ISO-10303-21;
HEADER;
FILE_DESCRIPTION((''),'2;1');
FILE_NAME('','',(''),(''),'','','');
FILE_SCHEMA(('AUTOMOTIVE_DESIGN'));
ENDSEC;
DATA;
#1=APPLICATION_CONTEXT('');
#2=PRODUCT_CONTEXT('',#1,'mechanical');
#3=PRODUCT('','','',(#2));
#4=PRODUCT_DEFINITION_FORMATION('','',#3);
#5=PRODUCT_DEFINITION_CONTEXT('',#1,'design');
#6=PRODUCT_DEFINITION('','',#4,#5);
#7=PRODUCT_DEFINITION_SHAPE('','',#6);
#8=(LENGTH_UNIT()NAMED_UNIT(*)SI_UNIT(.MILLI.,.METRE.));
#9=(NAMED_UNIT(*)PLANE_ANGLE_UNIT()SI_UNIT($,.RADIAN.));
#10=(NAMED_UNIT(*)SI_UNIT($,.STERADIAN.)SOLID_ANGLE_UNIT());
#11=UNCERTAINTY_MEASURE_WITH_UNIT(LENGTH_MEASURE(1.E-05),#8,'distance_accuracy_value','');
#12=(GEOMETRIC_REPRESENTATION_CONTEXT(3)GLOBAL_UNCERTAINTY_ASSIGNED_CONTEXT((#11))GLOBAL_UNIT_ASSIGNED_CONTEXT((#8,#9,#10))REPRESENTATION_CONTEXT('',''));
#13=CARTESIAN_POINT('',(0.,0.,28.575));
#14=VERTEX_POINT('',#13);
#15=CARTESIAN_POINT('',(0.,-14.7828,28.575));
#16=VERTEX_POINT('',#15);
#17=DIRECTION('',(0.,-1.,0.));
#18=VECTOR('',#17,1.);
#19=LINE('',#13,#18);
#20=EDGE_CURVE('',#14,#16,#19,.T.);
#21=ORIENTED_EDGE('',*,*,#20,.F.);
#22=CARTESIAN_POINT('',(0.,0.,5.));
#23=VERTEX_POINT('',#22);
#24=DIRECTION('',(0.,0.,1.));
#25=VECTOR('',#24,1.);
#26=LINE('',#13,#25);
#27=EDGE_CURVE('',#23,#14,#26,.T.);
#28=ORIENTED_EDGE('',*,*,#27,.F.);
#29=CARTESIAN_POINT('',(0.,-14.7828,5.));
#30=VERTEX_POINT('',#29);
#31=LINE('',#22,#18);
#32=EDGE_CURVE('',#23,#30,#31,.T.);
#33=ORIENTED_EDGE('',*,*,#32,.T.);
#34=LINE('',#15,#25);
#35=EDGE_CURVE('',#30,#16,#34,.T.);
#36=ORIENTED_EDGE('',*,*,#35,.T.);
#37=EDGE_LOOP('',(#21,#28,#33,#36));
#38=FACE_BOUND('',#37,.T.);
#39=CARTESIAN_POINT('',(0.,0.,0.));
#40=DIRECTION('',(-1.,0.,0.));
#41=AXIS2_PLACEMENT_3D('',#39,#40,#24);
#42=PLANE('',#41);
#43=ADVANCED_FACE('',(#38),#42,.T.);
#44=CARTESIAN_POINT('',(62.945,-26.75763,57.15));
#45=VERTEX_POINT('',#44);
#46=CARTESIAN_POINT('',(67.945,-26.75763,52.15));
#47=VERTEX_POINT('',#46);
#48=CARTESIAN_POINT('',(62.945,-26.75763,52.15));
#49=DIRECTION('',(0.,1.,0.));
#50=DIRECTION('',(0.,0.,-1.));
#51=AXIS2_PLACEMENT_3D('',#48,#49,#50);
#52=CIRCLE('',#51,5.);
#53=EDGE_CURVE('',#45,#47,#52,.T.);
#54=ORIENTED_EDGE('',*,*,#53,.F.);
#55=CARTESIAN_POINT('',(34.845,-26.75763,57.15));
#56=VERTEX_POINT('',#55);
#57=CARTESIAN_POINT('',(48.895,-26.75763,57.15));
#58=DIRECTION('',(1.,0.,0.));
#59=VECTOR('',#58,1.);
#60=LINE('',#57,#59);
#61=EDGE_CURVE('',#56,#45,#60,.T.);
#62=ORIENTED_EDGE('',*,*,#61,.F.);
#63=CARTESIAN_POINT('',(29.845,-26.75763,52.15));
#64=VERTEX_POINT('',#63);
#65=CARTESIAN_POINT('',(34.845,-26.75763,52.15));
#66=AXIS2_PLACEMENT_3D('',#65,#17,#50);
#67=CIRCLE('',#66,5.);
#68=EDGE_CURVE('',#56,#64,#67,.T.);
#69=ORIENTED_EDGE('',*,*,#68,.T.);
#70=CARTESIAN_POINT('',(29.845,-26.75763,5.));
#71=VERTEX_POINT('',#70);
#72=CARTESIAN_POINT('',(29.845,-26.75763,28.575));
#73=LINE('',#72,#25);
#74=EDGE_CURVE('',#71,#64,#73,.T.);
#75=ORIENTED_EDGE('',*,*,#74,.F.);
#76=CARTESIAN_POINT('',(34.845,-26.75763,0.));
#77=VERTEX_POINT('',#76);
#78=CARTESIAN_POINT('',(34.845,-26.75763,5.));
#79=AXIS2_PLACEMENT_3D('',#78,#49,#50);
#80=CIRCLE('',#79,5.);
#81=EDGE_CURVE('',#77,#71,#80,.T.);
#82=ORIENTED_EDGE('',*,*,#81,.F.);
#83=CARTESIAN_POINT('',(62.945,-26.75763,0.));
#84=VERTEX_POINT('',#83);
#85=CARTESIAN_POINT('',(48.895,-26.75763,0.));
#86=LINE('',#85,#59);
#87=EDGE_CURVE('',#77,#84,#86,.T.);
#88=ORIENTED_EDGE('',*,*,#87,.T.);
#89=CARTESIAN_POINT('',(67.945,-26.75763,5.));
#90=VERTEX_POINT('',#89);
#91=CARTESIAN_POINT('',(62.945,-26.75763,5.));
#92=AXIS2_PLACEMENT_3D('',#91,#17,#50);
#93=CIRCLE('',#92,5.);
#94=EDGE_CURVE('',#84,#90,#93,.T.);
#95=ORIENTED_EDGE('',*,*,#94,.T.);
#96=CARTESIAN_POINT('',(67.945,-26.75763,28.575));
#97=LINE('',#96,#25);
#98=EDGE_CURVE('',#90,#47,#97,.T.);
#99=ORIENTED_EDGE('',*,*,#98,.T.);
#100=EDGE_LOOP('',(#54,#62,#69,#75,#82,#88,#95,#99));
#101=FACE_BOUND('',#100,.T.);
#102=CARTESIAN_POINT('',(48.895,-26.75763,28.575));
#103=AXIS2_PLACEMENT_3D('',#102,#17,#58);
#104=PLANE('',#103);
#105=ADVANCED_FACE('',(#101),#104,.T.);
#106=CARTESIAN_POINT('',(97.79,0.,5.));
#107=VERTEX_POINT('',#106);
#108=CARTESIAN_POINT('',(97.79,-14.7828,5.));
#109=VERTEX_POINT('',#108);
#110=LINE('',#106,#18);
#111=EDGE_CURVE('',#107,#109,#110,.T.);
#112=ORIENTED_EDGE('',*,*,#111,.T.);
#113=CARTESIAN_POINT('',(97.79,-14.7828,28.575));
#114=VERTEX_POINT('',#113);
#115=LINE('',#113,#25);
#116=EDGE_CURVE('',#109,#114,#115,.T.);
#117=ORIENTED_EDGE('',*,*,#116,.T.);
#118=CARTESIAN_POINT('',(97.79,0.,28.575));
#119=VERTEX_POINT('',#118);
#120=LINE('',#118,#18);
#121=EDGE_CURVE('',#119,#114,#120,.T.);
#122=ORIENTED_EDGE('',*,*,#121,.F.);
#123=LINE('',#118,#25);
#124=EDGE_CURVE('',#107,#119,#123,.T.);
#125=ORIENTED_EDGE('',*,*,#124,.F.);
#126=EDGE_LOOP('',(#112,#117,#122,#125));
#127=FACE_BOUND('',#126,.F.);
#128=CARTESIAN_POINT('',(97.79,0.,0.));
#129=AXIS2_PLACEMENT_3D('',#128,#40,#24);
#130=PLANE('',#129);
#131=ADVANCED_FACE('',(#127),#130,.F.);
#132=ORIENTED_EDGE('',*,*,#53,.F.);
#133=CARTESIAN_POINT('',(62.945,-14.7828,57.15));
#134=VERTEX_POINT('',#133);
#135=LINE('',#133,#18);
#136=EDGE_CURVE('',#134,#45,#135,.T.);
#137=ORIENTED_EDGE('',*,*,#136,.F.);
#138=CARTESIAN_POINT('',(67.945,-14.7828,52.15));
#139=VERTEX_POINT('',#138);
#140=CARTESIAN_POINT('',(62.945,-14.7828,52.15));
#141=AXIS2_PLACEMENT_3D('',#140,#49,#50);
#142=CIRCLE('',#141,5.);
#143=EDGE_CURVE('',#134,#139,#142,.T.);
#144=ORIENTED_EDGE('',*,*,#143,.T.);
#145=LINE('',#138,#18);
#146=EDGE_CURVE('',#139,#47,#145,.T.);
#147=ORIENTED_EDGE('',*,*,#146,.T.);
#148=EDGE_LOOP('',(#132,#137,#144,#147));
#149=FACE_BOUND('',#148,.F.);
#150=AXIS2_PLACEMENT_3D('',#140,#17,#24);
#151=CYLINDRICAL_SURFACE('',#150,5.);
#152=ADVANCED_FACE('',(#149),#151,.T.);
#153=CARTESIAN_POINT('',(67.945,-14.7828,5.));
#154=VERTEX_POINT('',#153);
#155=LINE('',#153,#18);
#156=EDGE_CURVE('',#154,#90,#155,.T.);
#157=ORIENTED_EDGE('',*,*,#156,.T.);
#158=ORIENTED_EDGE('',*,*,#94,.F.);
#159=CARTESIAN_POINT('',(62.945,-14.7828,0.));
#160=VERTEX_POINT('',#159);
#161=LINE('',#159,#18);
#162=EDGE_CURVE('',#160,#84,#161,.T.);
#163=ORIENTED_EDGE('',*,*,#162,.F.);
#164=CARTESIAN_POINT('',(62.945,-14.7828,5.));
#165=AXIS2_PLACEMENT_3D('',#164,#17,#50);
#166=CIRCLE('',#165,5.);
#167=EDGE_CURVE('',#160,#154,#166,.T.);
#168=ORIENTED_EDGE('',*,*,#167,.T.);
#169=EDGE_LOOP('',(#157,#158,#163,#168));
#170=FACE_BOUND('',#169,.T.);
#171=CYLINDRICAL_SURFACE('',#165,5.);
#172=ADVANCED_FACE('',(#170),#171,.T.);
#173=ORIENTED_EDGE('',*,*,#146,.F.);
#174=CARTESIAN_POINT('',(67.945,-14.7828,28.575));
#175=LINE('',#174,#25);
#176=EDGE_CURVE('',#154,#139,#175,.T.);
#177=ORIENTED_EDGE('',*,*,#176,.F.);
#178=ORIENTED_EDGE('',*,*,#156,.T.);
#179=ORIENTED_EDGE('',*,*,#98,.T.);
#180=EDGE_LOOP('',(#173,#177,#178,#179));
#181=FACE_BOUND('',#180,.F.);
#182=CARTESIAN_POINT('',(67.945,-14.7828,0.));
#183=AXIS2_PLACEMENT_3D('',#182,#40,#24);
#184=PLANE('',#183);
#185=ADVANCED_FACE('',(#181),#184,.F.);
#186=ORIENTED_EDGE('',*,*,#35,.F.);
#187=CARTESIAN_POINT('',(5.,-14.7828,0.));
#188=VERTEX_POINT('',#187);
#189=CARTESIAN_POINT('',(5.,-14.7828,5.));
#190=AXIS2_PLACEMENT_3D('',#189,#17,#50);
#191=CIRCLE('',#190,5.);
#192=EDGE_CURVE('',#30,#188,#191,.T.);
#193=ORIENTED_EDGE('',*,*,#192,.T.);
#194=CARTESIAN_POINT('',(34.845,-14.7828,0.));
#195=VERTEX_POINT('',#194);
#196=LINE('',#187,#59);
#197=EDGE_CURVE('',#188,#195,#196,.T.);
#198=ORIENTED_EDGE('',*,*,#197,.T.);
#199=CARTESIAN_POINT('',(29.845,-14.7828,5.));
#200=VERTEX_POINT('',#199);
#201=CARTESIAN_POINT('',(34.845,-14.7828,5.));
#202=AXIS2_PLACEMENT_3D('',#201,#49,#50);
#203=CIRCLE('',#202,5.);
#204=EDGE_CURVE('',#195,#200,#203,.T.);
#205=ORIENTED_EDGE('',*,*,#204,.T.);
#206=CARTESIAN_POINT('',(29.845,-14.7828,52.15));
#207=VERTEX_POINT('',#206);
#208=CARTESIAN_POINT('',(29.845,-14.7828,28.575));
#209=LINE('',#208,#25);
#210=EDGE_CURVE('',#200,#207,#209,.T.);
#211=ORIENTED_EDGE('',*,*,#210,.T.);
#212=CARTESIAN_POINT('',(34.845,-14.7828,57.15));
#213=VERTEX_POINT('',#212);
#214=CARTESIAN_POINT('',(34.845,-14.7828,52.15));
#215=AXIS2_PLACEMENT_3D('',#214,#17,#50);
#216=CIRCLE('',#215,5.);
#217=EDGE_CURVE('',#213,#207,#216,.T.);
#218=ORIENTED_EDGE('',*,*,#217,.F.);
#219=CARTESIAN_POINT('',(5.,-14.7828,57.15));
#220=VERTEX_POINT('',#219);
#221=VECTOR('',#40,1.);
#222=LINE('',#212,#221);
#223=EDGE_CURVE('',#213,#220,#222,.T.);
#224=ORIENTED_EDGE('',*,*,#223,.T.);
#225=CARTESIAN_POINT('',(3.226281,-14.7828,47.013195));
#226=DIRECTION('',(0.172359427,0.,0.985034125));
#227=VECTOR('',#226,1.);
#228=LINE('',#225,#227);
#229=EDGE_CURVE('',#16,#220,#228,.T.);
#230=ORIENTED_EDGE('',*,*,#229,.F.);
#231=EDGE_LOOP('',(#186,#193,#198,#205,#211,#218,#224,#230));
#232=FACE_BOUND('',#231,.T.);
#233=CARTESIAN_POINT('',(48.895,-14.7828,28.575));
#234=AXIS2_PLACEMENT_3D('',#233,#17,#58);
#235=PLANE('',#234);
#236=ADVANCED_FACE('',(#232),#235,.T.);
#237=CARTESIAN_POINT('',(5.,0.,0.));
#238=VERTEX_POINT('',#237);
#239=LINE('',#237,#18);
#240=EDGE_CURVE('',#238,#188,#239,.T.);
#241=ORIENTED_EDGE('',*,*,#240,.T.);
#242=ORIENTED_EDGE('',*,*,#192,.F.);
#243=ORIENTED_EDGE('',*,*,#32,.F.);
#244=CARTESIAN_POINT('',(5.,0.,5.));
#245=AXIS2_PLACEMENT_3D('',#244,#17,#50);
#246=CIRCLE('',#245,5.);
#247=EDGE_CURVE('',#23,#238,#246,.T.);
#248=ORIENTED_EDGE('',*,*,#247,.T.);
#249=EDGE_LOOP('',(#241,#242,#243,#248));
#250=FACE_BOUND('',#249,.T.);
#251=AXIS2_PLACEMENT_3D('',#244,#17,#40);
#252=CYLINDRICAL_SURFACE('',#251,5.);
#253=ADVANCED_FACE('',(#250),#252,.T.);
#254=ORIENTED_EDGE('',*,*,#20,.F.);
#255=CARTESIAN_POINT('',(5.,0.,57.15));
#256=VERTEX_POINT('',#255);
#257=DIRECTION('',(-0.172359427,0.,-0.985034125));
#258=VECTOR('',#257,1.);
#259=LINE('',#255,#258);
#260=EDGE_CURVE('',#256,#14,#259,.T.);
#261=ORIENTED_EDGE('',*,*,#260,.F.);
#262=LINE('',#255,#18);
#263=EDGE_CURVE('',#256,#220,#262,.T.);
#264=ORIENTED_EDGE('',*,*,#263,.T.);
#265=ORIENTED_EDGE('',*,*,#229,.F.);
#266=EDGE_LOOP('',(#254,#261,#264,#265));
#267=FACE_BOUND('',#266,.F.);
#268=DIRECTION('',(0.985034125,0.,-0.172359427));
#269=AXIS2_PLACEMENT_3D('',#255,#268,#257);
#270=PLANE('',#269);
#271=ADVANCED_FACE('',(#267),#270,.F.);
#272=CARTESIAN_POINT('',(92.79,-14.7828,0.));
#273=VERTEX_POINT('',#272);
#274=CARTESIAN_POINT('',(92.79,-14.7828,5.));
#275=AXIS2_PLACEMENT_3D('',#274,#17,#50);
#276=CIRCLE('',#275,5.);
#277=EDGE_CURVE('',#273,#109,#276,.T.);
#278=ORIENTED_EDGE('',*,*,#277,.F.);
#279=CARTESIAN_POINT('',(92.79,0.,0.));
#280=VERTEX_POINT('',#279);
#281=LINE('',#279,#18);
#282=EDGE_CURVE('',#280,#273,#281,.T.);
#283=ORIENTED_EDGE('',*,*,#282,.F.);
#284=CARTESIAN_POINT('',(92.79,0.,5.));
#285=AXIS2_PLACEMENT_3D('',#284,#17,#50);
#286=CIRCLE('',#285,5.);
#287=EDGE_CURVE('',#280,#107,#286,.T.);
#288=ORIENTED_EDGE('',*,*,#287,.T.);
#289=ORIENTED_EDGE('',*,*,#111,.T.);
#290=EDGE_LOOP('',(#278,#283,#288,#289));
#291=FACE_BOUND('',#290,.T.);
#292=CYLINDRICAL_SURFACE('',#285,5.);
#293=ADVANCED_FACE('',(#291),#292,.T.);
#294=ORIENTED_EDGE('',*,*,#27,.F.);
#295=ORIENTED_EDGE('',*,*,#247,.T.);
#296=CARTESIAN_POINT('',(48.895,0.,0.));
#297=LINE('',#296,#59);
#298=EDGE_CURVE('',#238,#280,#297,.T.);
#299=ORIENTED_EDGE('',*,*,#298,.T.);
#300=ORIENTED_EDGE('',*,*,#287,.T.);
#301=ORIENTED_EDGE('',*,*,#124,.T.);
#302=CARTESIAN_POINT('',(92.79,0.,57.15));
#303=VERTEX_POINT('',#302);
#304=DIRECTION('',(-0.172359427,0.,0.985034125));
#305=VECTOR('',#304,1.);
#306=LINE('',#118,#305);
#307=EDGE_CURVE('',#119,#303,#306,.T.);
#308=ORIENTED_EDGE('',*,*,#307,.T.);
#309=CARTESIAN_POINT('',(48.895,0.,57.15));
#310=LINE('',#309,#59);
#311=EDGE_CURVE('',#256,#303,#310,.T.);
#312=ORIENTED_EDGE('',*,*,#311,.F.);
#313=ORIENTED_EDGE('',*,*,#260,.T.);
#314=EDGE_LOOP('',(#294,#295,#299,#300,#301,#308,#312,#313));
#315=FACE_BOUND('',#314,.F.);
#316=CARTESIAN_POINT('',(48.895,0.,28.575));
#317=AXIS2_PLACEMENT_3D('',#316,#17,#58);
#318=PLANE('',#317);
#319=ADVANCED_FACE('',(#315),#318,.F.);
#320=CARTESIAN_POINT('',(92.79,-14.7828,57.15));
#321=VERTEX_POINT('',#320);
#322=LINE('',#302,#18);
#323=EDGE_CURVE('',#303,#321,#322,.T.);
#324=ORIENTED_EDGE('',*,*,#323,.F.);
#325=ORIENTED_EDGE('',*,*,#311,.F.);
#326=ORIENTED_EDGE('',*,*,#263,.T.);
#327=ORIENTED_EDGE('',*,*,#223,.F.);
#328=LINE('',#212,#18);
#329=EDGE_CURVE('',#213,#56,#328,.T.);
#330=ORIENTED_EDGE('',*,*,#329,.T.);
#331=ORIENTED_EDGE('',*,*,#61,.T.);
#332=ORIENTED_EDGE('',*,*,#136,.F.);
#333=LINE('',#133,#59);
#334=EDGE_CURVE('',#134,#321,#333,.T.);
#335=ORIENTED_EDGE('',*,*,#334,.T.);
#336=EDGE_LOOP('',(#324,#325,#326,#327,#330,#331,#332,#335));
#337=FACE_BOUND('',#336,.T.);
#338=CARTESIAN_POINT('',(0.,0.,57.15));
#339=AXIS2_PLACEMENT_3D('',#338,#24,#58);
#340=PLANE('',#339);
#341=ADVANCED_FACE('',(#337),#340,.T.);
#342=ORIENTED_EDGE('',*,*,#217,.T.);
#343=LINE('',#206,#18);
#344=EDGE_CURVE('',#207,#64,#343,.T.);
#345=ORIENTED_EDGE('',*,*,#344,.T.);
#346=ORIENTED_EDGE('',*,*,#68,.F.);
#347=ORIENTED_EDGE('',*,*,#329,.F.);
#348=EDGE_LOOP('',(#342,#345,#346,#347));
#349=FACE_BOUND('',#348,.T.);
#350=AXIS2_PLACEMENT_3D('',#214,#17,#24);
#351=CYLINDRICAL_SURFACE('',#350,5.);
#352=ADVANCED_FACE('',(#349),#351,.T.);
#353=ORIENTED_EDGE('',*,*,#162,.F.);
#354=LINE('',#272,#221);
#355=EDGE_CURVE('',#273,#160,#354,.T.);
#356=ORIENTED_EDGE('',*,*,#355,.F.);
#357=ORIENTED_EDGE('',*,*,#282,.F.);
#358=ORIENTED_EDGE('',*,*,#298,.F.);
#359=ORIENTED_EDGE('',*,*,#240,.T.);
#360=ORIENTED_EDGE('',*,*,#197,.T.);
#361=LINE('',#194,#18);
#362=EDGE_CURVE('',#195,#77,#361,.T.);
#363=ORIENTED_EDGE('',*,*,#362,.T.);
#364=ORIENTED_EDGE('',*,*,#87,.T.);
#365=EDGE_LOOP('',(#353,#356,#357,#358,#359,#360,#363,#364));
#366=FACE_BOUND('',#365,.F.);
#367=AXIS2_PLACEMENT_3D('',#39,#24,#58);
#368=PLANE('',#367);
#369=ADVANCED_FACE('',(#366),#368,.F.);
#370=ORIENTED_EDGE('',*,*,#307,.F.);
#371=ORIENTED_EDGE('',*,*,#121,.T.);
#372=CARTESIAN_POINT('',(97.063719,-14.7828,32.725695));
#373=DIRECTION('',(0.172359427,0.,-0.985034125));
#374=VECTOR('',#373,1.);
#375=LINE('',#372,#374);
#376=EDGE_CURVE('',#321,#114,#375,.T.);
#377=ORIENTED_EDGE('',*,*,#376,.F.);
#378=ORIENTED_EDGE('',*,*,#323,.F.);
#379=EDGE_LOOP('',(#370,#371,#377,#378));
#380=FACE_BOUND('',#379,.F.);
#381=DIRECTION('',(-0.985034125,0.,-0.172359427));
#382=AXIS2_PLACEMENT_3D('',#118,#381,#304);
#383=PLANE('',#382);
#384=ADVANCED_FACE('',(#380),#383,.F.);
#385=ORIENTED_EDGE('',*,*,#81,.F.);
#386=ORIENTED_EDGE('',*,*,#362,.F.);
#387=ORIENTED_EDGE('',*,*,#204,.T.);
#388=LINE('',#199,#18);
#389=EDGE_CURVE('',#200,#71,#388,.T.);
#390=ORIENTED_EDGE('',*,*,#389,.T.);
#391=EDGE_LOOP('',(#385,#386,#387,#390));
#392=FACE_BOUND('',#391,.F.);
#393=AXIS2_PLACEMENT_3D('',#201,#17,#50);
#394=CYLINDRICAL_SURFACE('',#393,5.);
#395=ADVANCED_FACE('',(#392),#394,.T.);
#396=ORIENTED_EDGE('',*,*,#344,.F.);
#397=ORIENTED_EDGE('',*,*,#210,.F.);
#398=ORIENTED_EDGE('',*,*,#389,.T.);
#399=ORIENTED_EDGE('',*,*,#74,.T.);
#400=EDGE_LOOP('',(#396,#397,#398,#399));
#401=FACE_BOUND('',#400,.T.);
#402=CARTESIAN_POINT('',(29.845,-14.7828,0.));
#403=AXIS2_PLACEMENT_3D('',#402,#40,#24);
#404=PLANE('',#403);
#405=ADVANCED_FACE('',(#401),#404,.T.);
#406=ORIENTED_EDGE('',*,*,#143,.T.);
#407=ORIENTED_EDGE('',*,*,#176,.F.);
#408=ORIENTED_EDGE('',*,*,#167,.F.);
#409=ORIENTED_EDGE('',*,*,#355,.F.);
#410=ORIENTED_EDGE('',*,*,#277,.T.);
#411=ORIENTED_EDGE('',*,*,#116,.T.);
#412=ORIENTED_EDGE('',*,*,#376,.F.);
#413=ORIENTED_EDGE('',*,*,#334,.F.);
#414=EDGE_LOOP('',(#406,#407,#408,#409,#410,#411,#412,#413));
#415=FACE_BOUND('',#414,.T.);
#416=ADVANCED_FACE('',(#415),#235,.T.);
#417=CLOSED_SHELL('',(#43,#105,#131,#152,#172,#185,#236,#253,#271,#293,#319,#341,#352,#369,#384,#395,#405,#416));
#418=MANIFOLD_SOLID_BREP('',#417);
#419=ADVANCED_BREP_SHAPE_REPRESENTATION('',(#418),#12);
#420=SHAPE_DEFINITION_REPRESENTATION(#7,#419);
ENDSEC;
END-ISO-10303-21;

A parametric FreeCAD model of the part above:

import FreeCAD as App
import Part
import Sketcher

V = App.Vector
Q = App.Units.Quantity


def edges_at(feature, points):
    """Names of the edges that pass closest to the given points."""
    edges = feature.Shape.Edges
    near = lambda p: min(range(len(edges)), key=lambda i: edges[i].distToShape(Part.Vertex(*p))[0])
    return sorted({f"Edge{near(p) + 1}" for p in points})


def add_polygon(sketch, points):
    """Adds a closed chain of lines whose ends are joined by coincident constraints."""
    first, n = sketch.GeometryCount, len(points)
    for a, b in zip(points, points[1:] + points[:1]):
        sketch.addGeometry(Part.LineSegment(App.Vector(*a, 0), App.Vector(*b, 0)), False)
    for i in range(n):
        sketch.addConstraint(Sketcher.Constraint("Coincident", first + i, 2, first + (i + 1) % n, 1))

doc = App.newDocument("Part")
body = doc.addObject("PartDesign::Body", "Body")

# Sketch on XZ plane
sketch1 = body.newObject("Sketcher::SketchObject", "Sketch")
sketch1.AttachmentSupport = (doc.getObject("XZ_Plane"), [""])
sketch1.MapMode = "FlatFace"
add_polygon(sketch1, [(0, 57.15), (0, 0), (97.79, 0), (97.79, 57.15)])  # lines 0-3
sketch1.addConstraint(Sketcher.Constraint("Vertical", 0))
sketch1.addConstraint(Sketcher.Constraint("Horizontal", 1))
sketch1.addConstraint(Sketcher.Constraint("Vertical", 2))
sketch1.addConstraint(Sketcher.Constraint("Horizontal", 3))
sketch1.addConstraint(Sketcher.Constraint("Coincident", 0, 2, -1, 1))
sketch1.addConstraint(Sketcher.Constraint("DistanceX", 1, 1, 1, 2, Q("3.85 in")))
sketch1.addConstraint(Sketcher.Constraint("DistanceY", 0, 2, 0, 1, Q("2.25 in")))
pad1 = body.newObject("PartDesign::Pad", "Pad")
pad1.Profile = sketch1
pad1.Length = Q("0.582 in")

# Sketch on XZ plane
sketch2 = body.newObject("Sketcher::SketchObject", "Sketch001")
sketch2.AttachmentSupport = (doc.getObject("XZ_Plane"), [""])
sketch2.MapMode = "FlatFace"
sketch2.AttachmentOffset = App.Placement(V(0, 0, 0.582 * 25.4), App.Rotation())
add_polygon(sketch2, [(29.845, 57.15), (29.845, 0), (67.945, 0), (67.945, 57.15)])  # lines 0-3
sketch2.addConstraint(Sketcher.Constraint("Vertical", 0))
sketch2.addConstraint(Sketcher.Constraint("Horizontal", 1))
sketch2.addConstraint(Sketcher.Constraint("Vertical", 2))
sketch2.addConstraint(Sketcher.Constraint("Horizontal", 3))
sketch2.addConstraint(Sketcher.Constraint("PointOnObject", 0, 2, -1))
sketch2.addConstraint(Sketcher.Constraint("DistanceX", 1, 1, 1, 2, Q("1.5 in")))
sketch2.addConstraint(Sketcher.Constraint("DistanceY", 0, 2, 0, 1, Q("2.25 in")))
sketch2.addConstraint(Sketcher.Constraint("DistanceX", -1, 1, 0, 2, Q("1.175 in")))
pad2 = body.newObject("PartDesign::Pad", "Pad001")
pad2.Profile = sketch2
pad2.Length = 11.97483
doc.recompute()

fillet = body.newObject("PartDesign::Fillet", "Fillet")
fillet.Base = (pad2, edges_at(pad2, [
    (0, -7.391, 0),
    (29.845, -20.77, 0),
    (67.945, -20.77, 0),
    (97.79, -7.391, 0),
    (97.79, -7.391, 57.15),
    (67.945, -20.77, 57.15),
    (29.845, -20.77, 57.15),
    (0, -7.391, 57.15),
]))
fillet.Radius = 5

# Sketch on XZ plane
sketch3 = body.newObject("Sketcher::SketchObject", "Sketch002")
sketch3.AttachmentSupport = (doc.getObject("XZ_Plane"), [""])
sketch3.MapMode = "FlatFace"
add_polygon(sketch3, [(97.79, 58.024891), (97.79, 28.575), (92.79, 57.15)])  # lines 0-2
add_polygon(sketch3, [(5, 57.15), (0, 28.575), (0, 58.024891)])  # lines 3-5
sketch3.addConstraint(Sketcher.Constraint("Vertical", 0))
sketch3.addConstraint(Sketcher.Constraint("Vertical", 4))
sketch3.addConstraint(Sketcher.Constraint("PointOnObject", 3, 2, -2))
sketch3.addConstraint(Sketcher.Constraint("Perpendicular", 1, 2))
sketch3.addConstraint(Sketcher.Constraint("Perpendicular", 3, 5))
sketch3.addConstraint(Sketcher.Constraint("Horizontal", 0, 2, 3, 2))
sketch3.addConstraint(Sketcher.Constraint("Horizontal", 2, 2, 4, 2))
sketch3.addConstraint(Sketcher.Constraint("Horizontal", 1, 2, 5, 2))
sketch3.addConstraint(Sketcher.Constraint("DistanceX", -1, 1, 0, 2, Q("3.85 in")))
sketch3.addConstraint(Sketcher.Constraint("DistanceY", -1, 1, 1, 2, Q("2.25 in")))
sketch3.addConstraint(Sketcher.Constraint("DistanceY", -1, 1, 0, 2, Q("1.125 in")))
sketch3.addConstraint(Sketcher.Constraint("DistanceY", 0, 2, 0, 1, Q("29.449891 mm")))
pocket1 = body.newObject("PartDesign::Pocket", "Pocket")
pocket1.Profile = sketch3
pocket1.Type = "ThroughAll"
pocket1.Reversed = True

doc.recompute()
